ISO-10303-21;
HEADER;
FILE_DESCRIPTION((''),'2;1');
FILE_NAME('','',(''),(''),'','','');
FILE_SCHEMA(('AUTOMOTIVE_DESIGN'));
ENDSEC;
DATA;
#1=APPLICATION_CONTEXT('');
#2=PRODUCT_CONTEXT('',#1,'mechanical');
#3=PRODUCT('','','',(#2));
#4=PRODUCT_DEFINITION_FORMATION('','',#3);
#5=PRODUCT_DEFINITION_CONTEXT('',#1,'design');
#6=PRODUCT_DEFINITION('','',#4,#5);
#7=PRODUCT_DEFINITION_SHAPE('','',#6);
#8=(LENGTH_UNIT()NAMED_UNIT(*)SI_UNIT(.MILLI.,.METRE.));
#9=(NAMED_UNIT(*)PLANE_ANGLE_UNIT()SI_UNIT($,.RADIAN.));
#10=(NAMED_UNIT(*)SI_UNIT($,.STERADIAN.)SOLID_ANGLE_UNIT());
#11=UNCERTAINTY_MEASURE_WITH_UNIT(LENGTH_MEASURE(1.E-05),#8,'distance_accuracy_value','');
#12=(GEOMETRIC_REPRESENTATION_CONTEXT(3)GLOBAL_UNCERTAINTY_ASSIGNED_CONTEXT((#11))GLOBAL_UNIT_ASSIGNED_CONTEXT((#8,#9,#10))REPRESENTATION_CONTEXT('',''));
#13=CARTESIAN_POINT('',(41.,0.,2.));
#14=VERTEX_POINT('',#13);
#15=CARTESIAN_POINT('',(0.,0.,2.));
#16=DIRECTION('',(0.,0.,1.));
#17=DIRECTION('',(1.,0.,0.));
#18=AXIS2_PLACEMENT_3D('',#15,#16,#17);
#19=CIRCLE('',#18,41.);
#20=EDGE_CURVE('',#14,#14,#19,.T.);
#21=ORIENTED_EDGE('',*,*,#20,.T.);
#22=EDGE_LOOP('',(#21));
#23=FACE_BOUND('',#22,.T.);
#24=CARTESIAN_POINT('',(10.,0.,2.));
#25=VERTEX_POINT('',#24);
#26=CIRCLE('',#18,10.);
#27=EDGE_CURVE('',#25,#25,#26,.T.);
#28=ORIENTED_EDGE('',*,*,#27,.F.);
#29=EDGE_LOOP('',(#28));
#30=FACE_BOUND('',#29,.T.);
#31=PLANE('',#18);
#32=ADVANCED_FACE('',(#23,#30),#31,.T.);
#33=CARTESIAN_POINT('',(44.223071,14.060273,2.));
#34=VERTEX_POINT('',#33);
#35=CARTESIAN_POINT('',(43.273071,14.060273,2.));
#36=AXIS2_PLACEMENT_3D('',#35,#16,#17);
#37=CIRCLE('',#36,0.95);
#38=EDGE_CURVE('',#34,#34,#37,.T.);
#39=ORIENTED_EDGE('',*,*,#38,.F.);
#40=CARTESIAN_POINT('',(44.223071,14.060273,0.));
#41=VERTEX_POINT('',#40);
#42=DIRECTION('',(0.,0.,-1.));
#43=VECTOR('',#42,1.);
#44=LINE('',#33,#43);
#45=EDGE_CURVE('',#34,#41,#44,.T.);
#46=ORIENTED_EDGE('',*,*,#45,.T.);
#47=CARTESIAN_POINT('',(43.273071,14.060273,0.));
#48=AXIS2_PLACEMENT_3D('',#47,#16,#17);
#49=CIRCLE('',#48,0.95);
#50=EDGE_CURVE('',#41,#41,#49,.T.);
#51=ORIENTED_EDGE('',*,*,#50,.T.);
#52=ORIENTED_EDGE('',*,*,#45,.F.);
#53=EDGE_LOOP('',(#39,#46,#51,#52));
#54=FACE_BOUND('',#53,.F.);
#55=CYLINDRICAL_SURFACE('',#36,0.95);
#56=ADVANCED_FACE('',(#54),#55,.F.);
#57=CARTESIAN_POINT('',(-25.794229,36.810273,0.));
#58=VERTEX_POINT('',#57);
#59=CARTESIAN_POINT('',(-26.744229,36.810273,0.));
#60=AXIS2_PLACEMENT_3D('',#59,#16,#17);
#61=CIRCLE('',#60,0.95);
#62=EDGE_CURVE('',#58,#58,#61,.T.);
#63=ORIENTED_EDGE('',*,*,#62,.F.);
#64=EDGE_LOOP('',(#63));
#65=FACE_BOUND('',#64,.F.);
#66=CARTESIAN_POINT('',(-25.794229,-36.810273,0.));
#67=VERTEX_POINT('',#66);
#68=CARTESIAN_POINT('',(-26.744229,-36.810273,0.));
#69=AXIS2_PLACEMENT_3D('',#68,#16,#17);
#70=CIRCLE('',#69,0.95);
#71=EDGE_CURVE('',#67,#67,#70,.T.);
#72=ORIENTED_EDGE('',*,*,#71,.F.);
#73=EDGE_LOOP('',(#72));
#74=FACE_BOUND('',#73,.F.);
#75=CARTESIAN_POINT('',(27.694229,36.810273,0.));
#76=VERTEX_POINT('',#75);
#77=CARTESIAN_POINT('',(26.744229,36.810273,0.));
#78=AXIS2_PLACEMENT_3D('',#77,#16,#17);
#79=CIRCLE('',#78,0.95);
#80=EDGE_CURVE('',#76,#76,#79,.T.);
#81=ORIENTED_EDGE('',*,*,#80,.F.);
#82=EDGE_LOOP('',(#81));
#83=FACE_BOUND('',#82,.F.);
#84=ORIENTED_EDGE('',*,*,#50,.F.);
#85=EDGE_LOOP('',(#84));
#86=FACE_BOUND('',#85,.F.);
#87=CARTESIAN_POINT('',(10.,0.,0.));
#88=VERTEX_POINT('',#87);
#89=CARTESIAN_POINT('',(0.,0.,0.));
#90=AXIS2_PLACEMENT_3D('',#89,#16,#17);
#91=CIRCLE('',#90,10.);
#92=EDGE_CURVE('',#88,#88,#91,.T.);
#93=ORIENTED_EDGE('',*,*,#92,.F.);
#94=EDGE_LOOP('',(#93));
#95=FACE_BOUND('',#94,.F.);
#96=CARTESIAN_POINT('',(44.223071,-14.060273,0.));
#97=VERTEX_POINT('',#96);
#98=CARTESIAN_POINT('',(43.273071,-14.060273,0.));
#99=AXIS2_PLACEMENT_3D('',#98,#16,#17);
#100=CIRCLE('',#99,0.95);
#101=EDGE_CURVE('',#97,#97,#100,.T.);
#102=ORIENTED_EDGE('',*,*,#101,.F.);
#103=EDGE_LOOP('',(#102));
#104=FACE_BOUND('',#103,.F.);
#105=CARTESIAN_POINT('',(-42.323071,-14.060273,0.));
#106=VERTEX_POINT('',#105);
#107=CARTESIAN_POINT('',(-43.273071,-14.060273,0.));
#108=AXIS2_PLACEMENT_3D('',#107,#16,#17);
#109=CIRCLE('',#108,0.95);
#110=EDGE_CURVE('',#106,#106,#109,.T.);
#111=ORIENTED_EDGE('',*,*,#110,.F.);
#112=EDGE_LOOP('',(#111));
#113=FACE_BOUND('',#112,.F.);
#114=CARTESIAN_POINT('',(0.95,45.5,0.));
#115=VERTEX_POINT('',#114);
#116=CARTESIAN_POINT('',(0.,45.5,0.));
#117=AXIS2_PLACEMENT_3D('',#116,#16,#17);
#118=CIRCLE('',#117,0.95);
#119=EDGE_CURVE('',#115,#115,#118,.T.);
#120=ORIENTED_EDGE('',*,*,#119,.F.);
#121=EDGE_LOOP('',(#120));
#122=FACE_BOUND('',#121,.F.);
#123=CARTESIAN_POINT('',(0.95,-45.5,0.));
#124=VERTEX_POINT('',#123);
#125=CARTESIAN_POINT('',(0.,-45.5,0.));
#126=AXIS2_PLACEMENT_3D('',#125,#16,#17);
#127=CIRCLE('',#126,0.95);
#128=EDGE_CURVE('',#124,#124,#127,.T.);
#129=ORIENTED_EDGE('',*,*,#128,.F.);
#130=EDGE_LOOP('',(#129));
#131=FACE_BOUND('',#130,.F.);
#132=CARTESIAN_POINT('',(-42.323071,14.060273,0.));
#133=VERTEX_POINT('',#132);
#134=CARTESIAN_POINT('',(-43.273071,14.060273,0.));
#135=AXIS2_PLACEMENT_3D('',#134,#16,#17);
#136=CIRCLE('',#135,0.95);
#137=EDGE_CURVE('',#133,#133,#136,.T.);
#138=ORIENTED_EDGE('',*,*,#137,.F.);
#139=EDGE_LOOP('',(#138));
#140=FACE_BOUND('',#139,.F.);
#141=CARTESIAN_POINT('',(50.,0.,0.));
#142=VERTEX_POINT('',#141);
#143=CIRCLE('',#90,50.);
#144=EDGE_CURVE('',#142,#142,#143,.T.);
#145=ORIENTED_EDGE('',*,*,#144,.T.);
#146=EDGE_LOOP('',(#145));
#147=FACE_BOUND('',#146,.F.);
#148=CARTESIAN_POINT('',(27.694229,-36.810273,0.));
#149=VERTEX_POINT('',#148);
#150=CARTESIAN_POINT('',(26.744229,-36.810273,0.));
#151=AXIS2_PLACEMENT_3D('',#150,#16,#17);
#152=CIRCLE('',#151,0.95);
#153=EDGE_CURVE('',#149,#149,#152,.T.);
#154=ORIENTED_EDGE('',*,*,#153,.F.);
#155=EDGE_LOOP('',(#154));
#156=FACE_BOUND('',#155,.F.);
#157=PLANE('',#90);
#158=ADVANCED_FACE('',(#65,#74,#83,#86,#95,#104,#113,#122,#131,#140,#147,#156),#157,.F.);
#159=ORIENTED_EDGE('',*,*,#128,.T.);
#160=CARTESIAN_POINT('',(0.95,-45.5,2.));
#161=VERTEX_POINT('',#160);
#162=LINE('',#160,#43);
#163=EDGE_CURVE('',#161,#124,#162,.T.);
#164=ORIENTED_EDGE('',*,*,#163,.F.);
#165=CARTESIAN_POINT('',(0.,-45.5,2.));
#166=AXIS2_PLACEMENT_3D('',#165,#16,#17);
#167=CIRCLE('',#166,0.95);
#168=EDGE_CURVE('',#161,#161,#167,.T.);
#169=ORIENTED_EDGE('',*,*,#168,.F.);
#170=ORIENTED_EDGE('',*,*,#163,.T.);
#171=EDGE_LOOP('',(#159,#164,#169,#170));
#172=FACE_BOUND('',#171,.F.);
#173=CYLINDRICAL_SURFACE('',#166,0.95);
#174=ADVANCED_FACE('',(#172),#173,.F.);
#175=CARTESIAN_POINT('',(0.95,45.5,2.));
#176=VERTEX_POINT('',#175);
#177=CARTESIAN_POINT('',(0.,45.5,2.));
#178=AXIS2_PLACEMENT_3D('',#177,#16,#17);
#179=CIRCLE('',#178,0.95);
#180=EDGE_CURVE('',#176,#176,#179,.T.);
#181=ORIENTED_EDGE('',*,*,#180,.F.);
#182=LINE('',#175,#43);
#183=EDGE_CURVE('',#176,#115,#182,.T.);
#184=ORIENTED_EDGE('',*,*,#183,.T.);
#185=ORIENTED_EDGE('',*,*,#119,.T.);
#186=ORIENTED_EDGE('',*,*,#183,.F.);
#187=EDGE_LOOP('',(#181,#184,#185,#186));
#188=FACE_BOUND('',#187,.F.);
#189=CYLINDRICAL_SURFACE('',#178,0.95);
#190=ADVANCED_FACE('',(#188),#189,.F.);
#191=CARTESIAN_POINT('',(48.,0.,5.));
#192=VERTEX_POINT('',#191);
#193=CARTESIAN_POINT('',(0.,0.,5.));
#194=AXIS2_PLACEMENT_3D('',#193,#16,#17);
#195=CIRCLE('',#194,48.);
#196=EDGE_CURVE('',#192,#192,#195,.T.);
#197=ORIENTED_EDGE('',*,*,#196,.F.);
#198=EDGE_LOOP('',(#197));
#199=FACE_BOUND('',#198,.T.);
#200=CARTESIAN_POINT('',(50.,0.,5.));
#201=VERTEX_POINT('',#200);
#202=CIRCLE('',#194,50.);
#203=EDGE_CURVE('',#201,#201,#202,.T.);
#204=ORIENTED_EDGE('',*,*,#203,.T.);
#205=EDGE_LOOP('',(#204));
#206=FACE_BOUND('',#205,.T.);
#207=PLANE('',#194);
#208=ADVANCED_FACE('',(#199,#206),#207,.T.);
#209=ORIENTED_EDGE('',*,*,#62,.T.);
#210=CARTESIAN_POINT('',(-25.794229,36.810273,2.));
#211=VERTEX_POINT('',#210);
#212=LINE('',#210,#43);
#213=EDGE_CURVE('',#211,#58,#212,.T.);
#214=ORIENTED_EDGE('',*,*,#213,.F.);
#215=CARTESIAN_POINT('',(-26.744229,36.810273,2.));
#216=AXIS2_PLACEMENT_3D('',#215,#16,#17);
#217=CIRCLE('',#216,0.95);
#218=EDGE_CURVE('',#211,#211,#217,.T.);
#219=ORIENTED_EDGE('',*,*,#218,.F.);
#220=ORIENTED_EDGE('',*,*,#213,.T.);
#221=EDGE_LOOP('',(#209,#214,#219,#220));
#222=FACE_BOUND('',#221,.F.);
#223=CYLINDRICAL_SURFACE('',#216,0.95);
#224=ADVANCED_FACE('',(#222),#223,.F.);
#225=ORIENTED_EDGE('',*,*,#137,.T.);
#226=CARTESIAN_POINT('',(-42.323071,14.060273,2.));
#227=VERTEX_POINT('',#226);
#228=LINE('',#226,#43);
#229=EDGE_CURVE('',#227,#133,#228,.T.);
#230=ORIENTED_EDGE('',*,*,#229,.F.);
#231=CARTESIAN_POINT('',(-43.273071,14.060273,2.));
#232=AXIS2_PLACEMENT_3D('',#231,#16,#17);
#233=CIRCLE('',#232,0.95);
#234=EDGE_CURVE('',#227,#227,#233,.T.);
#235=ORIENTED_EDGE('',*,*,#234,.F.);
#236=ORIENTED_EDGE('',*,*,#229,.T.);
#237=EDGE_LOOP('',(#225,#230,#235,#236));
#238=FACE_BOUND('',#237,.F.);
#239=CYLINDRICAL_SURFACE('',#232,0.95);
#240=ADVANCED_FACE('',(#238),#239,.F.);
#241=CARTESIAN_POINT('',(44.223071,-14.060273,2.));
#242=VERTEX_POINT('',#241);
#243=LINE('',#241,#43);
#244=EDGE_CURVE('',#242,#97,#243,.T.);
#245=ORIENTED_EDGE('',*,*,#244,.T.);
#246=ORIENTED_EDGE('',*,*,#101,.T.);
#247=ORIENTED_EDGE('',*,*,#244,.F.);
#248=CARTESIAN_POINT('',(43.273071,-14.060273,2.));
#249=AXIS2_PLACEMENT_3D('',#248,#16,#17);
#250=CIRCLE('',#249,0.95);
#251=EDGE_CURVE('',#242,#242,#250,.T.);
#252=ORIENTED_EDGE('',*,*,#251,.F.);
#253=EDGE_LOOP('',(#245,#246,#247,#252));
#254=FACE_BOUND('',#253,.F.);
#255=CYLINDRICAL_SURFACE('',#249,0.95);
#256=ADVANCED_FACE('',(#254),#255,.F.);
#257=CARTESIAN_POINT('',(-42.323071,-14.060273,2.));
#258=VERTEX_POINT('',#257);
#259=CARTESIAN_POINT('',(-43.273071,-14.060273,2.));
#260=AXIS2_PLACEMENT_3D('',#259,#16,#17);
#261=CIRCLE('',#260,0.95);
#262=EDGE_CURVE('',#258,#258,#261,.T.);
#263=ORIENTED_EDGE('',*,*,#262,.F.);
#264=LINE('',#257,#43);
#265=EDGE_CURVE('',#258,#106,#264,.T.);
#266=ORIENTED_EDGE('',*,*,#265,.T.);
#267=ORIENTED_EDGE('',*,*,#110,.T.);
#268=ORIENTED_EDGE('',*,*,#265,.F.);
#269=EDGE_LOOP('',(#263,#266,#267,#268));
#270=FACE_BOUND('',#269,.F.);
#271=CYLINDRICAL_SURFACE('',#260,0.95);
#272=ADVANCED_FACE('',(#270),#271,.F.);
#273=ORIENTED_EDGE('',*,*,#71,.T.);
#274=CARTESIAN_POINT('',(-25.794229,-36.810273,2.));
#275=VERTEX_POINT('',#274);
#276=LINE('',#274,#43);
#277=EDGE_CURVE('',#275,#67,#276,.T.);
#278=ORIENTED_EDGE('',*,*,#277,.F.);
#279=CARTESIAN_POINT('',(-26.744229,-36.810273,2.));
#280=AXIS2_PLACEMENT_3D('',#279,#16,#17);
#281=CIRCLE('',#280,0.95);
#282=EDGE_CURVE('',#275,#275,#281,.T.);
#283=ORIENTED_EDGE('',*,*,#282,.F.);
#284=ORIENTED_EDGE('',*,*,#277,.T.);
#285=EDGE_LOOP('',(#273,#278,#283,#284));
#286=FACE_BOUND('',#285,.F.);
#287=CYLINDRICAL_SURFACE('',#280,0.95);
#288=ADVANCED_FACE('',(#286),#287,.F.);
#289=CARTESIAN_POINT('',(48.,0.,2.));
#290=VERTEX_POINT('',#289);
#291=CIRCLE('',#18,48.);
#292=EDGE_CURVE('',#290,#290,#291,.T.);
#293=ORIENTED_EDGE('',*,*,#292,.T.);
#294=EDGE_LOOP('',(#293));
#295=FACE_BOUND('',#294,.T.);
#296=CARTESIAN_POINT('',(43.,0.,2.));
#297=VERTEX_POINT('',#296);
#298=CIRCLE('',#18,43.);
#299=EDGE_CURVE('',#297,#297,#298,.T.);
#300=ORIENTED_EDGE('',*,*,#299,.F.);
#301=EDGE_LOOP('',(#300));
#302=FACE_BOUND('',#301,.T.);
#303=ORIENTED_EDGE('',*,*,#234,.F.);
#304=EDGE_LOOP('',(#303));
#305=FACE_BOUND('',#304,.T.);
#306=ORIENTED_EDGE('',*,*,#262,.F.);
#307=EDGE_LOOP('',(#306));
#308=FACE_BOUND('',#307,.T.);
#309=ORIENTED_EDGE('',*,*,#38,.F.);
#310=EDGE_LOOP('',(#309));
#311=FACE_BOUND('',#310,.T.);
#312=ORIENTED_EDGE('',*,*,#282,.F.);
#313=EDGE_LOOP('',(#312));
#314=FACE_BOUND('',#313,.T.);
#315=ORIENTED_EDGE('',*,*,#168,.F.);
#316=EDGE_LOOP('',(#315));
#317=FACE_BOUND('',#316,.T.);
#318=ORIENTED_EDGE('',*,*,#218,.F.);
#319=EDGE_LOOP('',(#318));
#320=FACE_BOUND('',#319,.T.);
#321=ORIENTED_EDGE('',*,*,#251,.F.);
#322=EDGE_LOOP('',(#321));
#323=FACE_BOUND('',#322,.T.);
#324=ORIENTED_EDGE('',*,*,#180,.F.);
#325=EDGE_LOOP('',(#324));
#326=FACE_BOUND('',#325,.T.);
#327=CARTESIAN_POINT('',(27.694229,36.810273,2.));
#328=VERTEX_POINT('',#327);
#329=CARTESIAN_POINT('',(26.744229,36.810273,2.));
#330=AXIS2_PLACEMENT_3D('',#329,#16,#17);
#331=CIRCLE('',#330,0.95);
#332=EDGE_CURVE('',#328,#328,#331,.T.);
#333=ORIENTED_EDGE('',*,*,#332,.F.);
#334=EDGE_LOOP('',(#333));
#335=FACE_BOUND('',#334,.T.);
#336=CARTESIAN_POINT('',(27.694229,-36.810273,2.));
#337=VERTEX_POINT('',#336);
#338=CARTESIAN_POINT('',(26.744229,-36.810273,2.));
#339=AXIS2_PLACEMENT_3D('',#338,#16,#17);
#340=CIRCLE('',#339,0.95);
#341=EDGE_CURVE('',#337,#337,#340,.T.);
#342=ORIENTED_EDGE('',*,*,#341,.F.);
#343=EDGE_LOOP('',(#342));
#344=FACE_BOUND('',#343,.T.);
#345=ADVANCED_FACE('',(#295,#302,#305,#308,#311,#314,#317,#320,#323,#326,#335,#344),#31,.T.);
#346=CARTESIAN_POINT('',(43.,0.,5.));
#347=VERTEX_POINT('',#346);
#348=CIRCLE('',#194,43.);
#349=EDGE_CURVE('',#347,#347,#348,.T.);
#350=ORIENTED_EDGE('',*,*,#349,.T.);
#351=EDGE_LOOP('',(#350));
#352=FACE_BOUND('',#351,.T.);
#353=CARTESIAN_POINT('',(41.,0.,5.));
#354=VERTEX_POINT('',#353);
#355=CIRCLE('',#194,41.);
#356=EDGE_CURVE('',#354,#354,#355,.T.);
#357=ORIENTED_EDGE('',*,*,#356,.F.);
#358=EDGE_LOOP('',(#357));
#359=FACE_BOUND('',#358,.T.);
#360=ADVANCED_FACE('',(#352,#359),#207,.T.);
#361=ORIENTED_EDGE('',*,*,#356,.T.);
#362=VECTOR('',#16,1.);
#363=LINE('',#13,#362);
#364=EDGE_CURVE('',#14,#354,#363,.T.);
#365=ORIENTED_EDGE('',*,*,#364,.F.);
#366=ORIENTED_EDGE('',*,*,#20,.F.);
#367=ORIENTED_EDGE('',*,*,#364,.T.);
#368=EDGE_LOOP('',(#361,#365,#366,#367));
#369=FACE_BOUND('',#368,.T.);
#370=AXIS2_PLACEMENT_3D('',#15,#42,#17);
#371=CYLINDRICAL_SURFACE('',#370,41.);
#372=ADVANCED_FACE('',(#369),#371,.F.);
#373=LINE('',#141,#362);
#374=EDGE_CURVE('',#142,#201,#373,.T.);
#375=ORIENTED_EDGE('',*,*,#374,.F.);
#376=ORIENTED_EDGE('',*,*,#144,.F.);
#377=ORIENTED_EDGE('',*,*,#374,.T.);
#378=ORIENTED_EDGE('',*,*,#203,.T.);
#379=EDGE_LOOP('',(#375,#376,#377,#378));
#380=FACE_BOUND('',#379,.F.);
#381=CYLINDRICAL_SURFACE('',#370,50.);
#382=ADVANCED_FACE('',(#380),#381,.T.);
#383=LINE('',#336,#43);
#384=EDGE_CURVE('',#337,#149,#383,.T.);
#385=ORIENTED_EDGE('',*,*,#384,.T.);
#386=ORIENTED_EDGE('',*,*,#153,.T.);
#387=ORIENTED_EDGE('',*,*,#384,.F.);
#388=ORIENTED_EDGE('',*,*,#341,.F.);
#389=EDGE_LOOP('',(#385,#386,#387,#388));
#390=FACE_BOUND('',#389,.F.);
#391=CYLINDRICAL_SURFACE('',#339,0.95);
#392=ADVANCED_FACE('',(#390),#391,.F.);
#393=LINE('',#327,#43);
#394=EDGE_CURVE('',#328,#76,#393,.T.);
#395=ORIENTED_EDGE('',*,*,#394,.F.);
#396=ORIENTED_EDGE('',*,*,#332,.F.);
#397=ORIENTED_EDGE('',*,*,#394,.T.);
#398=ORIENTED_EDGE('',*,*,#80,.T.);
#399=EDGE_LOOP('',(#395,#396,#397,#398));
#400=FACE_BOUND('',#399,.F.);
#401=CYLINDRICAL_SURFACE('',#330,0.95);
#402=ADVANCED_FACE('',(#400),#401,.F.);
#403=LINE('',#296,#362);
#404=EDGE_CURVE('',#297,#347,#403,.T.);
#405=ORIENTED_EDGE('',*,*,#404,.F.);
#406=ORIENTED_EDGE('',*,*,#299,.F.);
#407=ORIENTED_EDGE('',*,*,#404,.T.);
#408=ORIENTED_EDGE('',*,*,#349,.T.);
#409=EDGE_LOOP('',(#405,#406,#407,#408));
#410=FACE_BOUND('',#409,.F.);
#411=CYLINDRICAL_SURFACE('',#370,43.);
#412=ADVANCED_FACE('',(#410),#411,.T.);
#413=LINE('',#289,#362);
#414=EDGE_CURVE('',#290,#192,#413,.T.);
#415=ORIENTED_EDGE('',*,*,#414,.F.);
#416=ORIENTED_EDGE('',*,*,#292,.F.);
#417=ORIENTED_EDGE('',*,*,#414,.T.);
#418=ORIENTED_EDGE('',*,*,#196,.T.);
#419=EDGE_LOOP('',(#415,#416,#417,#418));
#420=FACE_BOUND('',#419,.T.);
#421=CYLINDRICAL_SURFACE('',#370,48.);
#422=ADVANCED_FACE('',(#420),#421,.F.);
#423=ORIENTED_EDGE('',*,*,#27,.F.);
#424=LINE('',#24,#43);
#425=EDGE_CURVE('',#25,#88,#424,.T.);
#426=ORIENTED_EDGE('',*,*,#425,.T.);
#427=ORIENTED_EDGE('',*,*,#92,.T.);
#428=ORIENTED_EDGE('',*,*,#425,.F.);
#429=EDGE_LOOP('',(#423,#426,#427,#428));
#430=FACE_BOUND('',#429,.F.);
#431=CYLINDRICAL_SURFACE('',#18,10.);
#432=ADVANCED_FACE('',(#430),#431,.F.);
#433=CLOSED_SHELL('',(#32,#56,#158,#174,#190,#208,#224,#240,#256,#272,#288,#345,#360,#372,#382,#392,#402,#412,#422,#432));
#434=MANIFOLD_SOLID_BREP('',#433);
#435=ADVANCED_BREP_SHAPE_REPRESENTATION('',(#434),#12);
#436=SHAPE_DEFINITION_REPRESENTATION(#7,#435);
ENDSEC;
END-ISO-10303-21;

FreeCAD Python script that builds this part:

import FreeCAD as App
import Part
import Sketcher
Q = App.Units.Quantity

doc = App.newDocument("Part")
params = doc.addObject("Spreadsheet::Sheet", "Params")
for row, (alias, value) in enumerate([
    ("sketch1_diameter", "100 mm"),
    ("pad1_length", "2 mm"),
    ("sketch2_diameter", "100 mm"),
    ("sketch2_diameter2", "96 mm"),
    ("sketch2_diameter3", "86 mm"),
    ("sketch2_diameter4", "82 mm"),
    ("pad2_length", "3 mm"),
    ("sketch3_diameter", "1.9 mm"),
    ("sketch4_diameter", "20 mm"),
], start=1):
    params.set(f"A{row}", alias)
    params.set(f"B{row}", "=" + value)
    params.setAlias(f"B{row}", alias)

body = doc.addObject("PartDesign::Body", "Body")

# Sketch on XY plane
sketch1 = body.newObject("Sketcher::SketchObject", "Sketch")
sketch1.AttachmentSupport = (doc.getObject("XY_Plane"), [""])
sketch1.MapMode = "FlatFace"
sketch1.addGeometry(Part.Circle(App.Vector(0, 0, 0), App.Vector(0, 0, 1), 50), False)
sketch1.addConstraint([
    Sketcher.Constraint("Coincident", 0, 3, -1, 1),
    Sketcher.Constraint("Diameter", 0, Q("100 mm")),
])
sketch1.setExpression("Constraints[1]", "Params.sketch1_diameter")
pad1 = body.newObject("PartDesign::Pad", "Pad")
pad1.Profile = sketch1
pad1.setExpression("Length", "Params.pad1_length")

# Sketch on XY plane
sketch2 = body.newObject("Sketcher::SketchObject", "Sketch001")
sketch2.AttachmentSupport = (doc.getObject("XY_Plane"), [""])
sketch2.MapMode = "FlatFace"
sketch2.AttachmentOffset = App.Placement(App.Vector(0, 0, 2), App.Rotation())
sketch2.addGeometry([
    Part.Circle(App.Vector(0, 0, 0), App.Vector(0, 0, 1), 50),
    Part.Circle(App.Vector(0, 0, 0), App.Vector(0, 0, 1), 48),
    Part.Circle(App.Vector(0, 0, 0), App.Vector(0, 0, 1), 43),
    Part.Circle(App.Vector(0, 0, 0), App.Vector(0, 0, 1), 41),
], False)
sketch2.addConstraint([
    Sketcher.Constraint("Coincident", 0, 3, -1, 1),
    Sketcher.Constraint("Coincident", 1, 3, -1, 1),
    Sketcher.Constraint("Coincident", 2, 3, -1, 1),
    Sketcher.Constraint("Coincident", 3, 3, -1, 1),
    Sketcher.Constraint("Diameter", 0, Q("100 mm")),
    Sketcher.Constraint("Diameter", 1, Q("96 mm")),
    Sketcher.Constraint("Diameter", 2, Q("86 mm")),
    Sketcher.Constraint("Diameter", 3, Q("82 mm")),
])
sketch2.setExpression("Constraints[4]", "Params.sketch2_diameter")
sketch2.setExpression("Constraints[5]", "Params.sketch2_diameter2")
sketch2.setExpression("Constraints[6]", "Params.sketch2_diameter3")
sketch2.setExpression("Constraints[7]", "Params.sketch2_diameter4")
pad2 = body.newObject("PartDesign::Pad", "Pad001")
pad2.Profile = sketch2
pad2.setExpression("Length", "Params.pad2_length")

# Sketch on XY plane
sketch3 = body.newObject("Sketcher::SketchObject", "Sketch002")
sketch3.AttachmentSupport = (doc.getObject("XY_Plane"), [""])
sketch3.MapMode = "FlatFace"
sketch3.AttachmentOffset = App.Placement(App.Vector(0, 0, 2), App.Rotation())
sketch3.addGeometry([
    Part.Circle(App.Vector(0, 45.5, 0), App.Vector(0, 0, 1), 0.9),  # 0
    Part.Circle(App.Vector(-26.7, 36.8, 0), App.Vector(0, 0, 1), 0.9),  # 1
    Part.Circle(App.Vector(-43.3, 14.1, 0), App.Vector(0, 0, 1), 0.9),  # 2
    Part.Circle(App.Vector(-43.3, -14.1, 0), App.Vector(0, 0, 1), 0.9),  # 3
    Part.Circle(App.Vector(-26.7, -36.8, 0), App.Vector(0, 0, 1), 0.9),  # 4
    Part.Circle(App.Vector(0, -45.5, 0), App.Vector(0, 0, 1), 0.9),  # 5
    Part.Circle(App.Vector(26.7, -36.8, 0), App.Vector(0, 0, 1), 0.9),  # 6
    Part.Circle(App.Vector(43.3, -14.1, 0), App.Vector(0, 0, 1), 0.9),  # 7
    Part.Circle(App.Vector(43.3, 14.1, 0), App.Vector(0, 0, 1), 0.9),  # 8
    Part.Circle(App.Vector(26.7, 36.8, 0), App.Vector(0, 0, 1), 0.9),  # 9
], False)
sketch3.addConstraint([
    Sketcher.Constraint("Equal", 0, 1),
    Sketcher.Constraint("Equal", 1, 2),
    Sketcher.Constraint("Equal", 2, 3),
    Sketcher.Constraint("Equal", 3, 4),
    Sketcher.Constraint("Equal", 4, 5),
    Sketcher.Constraint("Equal", 5, 6),
    Sketcher.Constraint("Equal", 6, 7),
    Sketcher.Constraint("Equal", 7, 8),
    Sketcher.Constraint("Equal", 8, 9),
    Sketcher.Constraint("Symmetric", 0, 3, 5, 3, -1, 1),
    Sketcher.Constraint("Symmetric", 1, 3, 6, 3, -1, 1),
    Sketcher.Constraint("Symmetric", 2, 3, 7, 3, -1, 1),
    Sketcher.Constraint("Symmetric", 3, 3, 8, 3, -1, 1),
    Sketcher.Constraint("Symmetric", 4, 3, 9, 3, -1, 1),
    Sketcher.Constraint("Symmetric", 4, 3, 6, 3, -2),
    Sketcher.Constraint("Symmetric", 3, 3, 7, 3, -2),
    Sketcher.Constraint("PointOnObject", 0, 3, -2),
    Sketcher.Constraint("Diameter", 0, Q("1.9 mm")),
    Sketcher.Constraint("DistanceY", 5, 3, 0, 3, Q("91 mm")),
    Sketcher.Constraint("DistanceY", 2, 3, 1, 3, Q("22.75 mm")),
    Sketcher.Constraint("DistanceX", 3, 3, 6, 3, Q("70.0173 mm")),
    Sketcher.Constraint("DistanceX", 1, 3, -1, 1, Q("26.744229 mm")),
    Sketcher.Constraint("DistanceY", -1, 1, 1, 3, Q("36.810273 mm")),
])
sketch3.setExpression("Constraints[17]", "Params.sketch3_diameter")
pocket1 = body.newObject("PartDesign::Pocket", "Pocket")
pocket1.Profile = sketch3
pocket1.Type = "ThroughAll"

# Sketch on XY plane
sketch4 = body.newObject("Sketcher::SketchObject", "Sketch003")
sketch4.AttachmentSupport = (doc.getObject("XY_Plane"), [""])
sketch4.MapMode = "FlatFace"
sketch4.AttachmentOffset = App.Placement(App.Vector(0, 0, 2), App.Rotation())
sketch4.addGeometry(Part.Circle(App.Vector(0, 0, 0), App.Vector(0, 0, 1), 10), False)
sketch4.addConstraint([
    Sketcher.Constraint("Coincident", 0, 3, -1, 1),
    Sketcher.Constraint("Diameter", 0, Q("20 mm")),
])
sketch4.setExpression("Constraints[1]", "Params.sketch4_diameter")
pocket2 = body.newObject("PartDesign::Pocket", "Pocket001")
pocket2.Profile = sketch4
pocket2.Type = "ThroughAll"

doc.recompute()
